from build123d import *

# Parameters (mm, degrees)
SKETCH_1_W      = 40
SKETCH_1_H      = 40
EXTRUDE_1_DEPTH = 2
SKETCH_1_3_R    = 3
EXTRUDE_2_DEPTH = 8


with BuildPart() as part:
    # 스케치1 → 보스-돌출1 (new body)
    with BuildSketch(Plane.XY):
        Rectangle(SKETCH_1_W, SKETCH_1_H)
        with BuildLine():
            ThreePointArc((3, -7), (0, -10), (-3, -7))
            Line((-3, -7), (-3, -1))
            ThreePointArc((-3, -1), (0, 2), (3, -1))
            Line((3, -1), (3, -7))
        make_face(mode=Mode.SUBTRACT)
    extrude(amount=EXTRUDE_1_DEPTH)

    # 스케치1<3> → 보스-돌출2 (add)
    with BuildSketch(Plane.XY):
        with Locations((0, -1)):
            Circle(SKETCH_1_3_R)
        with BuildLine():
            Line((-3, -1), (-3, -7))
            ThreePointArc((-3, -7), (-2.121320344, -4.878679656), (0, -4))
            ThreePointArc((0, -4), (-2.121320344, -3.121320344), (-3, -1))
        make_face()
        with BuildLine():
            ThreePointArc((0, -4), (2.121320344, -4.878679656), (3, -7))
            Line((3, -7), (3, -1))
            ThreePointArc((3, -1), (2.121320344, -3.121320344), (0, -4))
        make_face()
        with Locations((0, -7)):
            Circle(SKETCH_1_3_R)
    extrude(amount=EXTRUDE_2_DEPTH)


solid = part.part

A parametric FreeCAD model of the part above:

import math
import FreeCAD as App
import Part
import Sketcher

V = App.Vector
Q = App.Units.Quantity


def add_polygon(sketch, points):
    """Adds a closed chain of lines whose ends are joined by coincident constraints."""
    first, n = sketch.GeometryCount, len(points)
    for a, b in zip(points, points[1:] + points[:1]):
        sketch.addGeometry(Part.LineSegment(App.Vector(*a, 0), App.Vector(*b, 0)), False)
    for i in range(n):
        sketch.addConstraint(Sketcher.Constraint("Coincident", first + i, 2, first + (i + 1) % n, 1))

doc = App.newDocument("Part")
body = doc.addObject("PartDesign::Body", "Body")

# Sketch on XY plane
sketch1 = doc.addObject("Sketcher::SketchObject", "Sketch")
body.addObject(sketch1)
sketch1.AttachmentSupport = (doc.XY_Plane, [""])
sketch1.MapMode = "FlatFace"
add_polygon(sketch1, [(-20, 20), (-20, -20), (20, -20), (20, 20)])  # lines 0-3
sketch1.addGeometry(Part.LineSegment(V(3, -1, 0), V(3, -7, 0)), False)  # 4
sketch1.addGeometry(Part.ArcOfCircle(Part.Circle(V(0, -7, 0), V(0, 0, 1), 3), math.radians(180), math.radians(360)), False)  # 5
sketch1.addGeometry(Part.LineSegment(V(-3, -7, 0), V(-3, -1, 0)), False)  # 6
sketch1.addGeometry(Part.ArcOfCircle(Part.Circle(V(0, -1, 0), V(0, 0, 1), 3), math.radians(0), math.radians(180)), False)  # 7
sketch1.addConstraint([
    Sketcher.Constraint("Tangent", 4, 2, 5, 2),
    Sketcher.Constraint("Tangent", 5, 1, 6, 1),
    Sketcher.Constraint("Tangent", 6, 2, 7, 2),
    Sketcher.Constraint("Tangent", 7, 1, 4, 1),
    Sketcher.Constraint("Vertical", 0),
    Sketcher.Constraint("Horizontal", 1),
    Sketcher.Constraint("Vertical", 2),
    Sketcher.Constraint("Horizontal", 3),
    Sketcher.Constraint("Vertical", 4),
    Sketcher.Constraint("Vertical", 6),
    Sketcher.Constraint("Symmetric", 0, 2, 2, 2, -1, 1),
    Sketcher.Constraint("PointOnObject", 5, 3, -2),
    Sketcher.Constraint("Equal", 3, 0),
    Sketcher.Constraint("Radius", 5, Q("3 mm")),
    Sketcher.Constraint("DistanceX", 1, 1, 1, 2, Q("40 mm")),
    Sketcher.Constraint("DistanceY", 4, 2, 4, 1, Q("6 mm")),
    Sketcher.Constraint("DistanceY", 5, 3, -1, 1, Q("7 mm")),
])
pad1 = doc.addObject("PartDesign::Pad", "Pad")
body.addObject(pad1)
pad1.Profile = sketch1
pad1.Length = 2

# Sketch on XY plane
sketch2 = doc.addObject("Sketcher::SketchObject", "Sketch001")
body.addObject(sketch2)
sketch2.AttachmentSupport = (doc.XY_Plane, [""])
sketch2.MapMode = "FlatFace"
sketch2.addGeometry([
    Part.LineSegment(V(-3, -1, 0), V(-3, -7, 0)),
    Part.ArcOfCircle(Part.Circle(V(0, -7, 0), V(0, 0, 1), 3), math.radians(180), math.radians(360)),
    Part.LineSegment(V(3, -7, 0), V(3, -1, 0)),
    Part.ArcOfCircle(Part.Circle(V(0, -1, 0), V(0, 0, 1), 3), math.radians(0), math.radians(180)),
], False)
sketch2.addConstraint([
    Sketcher.Constraint("Tangent", 0, 2, 1, 1),
    Sketcher.Constraint("Tangent", 1, 2, 2, 1),
    Sketcher.Constraint("Tangent", 2, 2, 3, 1),
    Sketcher.Constraint("Tangent", 3, 2, 0, 1),
    Sketcher.Constraint("Vertical", 0),
    Sketcher.Constraint("Vertical", 2),
    Sketcher.Constraint("PointOnObject", 1, 3, -2),
    Sketcher.Constraint("Radius", 1, Q("3 mm")),
    Sketcher.Constraint("DistanceY", 0, 2, 0, 1, Q("6 mm")),
    Sketcher.Constraint("DistanceY", 1, 3, -1, 1, Q("7 mm")),
])
pad2 = doc.addObject("PartDesign::Pad", "Pad001")
body.addObject(pad2)
pad2.Profile = sketch2
pad2.Length = 8

doc.recompute()
